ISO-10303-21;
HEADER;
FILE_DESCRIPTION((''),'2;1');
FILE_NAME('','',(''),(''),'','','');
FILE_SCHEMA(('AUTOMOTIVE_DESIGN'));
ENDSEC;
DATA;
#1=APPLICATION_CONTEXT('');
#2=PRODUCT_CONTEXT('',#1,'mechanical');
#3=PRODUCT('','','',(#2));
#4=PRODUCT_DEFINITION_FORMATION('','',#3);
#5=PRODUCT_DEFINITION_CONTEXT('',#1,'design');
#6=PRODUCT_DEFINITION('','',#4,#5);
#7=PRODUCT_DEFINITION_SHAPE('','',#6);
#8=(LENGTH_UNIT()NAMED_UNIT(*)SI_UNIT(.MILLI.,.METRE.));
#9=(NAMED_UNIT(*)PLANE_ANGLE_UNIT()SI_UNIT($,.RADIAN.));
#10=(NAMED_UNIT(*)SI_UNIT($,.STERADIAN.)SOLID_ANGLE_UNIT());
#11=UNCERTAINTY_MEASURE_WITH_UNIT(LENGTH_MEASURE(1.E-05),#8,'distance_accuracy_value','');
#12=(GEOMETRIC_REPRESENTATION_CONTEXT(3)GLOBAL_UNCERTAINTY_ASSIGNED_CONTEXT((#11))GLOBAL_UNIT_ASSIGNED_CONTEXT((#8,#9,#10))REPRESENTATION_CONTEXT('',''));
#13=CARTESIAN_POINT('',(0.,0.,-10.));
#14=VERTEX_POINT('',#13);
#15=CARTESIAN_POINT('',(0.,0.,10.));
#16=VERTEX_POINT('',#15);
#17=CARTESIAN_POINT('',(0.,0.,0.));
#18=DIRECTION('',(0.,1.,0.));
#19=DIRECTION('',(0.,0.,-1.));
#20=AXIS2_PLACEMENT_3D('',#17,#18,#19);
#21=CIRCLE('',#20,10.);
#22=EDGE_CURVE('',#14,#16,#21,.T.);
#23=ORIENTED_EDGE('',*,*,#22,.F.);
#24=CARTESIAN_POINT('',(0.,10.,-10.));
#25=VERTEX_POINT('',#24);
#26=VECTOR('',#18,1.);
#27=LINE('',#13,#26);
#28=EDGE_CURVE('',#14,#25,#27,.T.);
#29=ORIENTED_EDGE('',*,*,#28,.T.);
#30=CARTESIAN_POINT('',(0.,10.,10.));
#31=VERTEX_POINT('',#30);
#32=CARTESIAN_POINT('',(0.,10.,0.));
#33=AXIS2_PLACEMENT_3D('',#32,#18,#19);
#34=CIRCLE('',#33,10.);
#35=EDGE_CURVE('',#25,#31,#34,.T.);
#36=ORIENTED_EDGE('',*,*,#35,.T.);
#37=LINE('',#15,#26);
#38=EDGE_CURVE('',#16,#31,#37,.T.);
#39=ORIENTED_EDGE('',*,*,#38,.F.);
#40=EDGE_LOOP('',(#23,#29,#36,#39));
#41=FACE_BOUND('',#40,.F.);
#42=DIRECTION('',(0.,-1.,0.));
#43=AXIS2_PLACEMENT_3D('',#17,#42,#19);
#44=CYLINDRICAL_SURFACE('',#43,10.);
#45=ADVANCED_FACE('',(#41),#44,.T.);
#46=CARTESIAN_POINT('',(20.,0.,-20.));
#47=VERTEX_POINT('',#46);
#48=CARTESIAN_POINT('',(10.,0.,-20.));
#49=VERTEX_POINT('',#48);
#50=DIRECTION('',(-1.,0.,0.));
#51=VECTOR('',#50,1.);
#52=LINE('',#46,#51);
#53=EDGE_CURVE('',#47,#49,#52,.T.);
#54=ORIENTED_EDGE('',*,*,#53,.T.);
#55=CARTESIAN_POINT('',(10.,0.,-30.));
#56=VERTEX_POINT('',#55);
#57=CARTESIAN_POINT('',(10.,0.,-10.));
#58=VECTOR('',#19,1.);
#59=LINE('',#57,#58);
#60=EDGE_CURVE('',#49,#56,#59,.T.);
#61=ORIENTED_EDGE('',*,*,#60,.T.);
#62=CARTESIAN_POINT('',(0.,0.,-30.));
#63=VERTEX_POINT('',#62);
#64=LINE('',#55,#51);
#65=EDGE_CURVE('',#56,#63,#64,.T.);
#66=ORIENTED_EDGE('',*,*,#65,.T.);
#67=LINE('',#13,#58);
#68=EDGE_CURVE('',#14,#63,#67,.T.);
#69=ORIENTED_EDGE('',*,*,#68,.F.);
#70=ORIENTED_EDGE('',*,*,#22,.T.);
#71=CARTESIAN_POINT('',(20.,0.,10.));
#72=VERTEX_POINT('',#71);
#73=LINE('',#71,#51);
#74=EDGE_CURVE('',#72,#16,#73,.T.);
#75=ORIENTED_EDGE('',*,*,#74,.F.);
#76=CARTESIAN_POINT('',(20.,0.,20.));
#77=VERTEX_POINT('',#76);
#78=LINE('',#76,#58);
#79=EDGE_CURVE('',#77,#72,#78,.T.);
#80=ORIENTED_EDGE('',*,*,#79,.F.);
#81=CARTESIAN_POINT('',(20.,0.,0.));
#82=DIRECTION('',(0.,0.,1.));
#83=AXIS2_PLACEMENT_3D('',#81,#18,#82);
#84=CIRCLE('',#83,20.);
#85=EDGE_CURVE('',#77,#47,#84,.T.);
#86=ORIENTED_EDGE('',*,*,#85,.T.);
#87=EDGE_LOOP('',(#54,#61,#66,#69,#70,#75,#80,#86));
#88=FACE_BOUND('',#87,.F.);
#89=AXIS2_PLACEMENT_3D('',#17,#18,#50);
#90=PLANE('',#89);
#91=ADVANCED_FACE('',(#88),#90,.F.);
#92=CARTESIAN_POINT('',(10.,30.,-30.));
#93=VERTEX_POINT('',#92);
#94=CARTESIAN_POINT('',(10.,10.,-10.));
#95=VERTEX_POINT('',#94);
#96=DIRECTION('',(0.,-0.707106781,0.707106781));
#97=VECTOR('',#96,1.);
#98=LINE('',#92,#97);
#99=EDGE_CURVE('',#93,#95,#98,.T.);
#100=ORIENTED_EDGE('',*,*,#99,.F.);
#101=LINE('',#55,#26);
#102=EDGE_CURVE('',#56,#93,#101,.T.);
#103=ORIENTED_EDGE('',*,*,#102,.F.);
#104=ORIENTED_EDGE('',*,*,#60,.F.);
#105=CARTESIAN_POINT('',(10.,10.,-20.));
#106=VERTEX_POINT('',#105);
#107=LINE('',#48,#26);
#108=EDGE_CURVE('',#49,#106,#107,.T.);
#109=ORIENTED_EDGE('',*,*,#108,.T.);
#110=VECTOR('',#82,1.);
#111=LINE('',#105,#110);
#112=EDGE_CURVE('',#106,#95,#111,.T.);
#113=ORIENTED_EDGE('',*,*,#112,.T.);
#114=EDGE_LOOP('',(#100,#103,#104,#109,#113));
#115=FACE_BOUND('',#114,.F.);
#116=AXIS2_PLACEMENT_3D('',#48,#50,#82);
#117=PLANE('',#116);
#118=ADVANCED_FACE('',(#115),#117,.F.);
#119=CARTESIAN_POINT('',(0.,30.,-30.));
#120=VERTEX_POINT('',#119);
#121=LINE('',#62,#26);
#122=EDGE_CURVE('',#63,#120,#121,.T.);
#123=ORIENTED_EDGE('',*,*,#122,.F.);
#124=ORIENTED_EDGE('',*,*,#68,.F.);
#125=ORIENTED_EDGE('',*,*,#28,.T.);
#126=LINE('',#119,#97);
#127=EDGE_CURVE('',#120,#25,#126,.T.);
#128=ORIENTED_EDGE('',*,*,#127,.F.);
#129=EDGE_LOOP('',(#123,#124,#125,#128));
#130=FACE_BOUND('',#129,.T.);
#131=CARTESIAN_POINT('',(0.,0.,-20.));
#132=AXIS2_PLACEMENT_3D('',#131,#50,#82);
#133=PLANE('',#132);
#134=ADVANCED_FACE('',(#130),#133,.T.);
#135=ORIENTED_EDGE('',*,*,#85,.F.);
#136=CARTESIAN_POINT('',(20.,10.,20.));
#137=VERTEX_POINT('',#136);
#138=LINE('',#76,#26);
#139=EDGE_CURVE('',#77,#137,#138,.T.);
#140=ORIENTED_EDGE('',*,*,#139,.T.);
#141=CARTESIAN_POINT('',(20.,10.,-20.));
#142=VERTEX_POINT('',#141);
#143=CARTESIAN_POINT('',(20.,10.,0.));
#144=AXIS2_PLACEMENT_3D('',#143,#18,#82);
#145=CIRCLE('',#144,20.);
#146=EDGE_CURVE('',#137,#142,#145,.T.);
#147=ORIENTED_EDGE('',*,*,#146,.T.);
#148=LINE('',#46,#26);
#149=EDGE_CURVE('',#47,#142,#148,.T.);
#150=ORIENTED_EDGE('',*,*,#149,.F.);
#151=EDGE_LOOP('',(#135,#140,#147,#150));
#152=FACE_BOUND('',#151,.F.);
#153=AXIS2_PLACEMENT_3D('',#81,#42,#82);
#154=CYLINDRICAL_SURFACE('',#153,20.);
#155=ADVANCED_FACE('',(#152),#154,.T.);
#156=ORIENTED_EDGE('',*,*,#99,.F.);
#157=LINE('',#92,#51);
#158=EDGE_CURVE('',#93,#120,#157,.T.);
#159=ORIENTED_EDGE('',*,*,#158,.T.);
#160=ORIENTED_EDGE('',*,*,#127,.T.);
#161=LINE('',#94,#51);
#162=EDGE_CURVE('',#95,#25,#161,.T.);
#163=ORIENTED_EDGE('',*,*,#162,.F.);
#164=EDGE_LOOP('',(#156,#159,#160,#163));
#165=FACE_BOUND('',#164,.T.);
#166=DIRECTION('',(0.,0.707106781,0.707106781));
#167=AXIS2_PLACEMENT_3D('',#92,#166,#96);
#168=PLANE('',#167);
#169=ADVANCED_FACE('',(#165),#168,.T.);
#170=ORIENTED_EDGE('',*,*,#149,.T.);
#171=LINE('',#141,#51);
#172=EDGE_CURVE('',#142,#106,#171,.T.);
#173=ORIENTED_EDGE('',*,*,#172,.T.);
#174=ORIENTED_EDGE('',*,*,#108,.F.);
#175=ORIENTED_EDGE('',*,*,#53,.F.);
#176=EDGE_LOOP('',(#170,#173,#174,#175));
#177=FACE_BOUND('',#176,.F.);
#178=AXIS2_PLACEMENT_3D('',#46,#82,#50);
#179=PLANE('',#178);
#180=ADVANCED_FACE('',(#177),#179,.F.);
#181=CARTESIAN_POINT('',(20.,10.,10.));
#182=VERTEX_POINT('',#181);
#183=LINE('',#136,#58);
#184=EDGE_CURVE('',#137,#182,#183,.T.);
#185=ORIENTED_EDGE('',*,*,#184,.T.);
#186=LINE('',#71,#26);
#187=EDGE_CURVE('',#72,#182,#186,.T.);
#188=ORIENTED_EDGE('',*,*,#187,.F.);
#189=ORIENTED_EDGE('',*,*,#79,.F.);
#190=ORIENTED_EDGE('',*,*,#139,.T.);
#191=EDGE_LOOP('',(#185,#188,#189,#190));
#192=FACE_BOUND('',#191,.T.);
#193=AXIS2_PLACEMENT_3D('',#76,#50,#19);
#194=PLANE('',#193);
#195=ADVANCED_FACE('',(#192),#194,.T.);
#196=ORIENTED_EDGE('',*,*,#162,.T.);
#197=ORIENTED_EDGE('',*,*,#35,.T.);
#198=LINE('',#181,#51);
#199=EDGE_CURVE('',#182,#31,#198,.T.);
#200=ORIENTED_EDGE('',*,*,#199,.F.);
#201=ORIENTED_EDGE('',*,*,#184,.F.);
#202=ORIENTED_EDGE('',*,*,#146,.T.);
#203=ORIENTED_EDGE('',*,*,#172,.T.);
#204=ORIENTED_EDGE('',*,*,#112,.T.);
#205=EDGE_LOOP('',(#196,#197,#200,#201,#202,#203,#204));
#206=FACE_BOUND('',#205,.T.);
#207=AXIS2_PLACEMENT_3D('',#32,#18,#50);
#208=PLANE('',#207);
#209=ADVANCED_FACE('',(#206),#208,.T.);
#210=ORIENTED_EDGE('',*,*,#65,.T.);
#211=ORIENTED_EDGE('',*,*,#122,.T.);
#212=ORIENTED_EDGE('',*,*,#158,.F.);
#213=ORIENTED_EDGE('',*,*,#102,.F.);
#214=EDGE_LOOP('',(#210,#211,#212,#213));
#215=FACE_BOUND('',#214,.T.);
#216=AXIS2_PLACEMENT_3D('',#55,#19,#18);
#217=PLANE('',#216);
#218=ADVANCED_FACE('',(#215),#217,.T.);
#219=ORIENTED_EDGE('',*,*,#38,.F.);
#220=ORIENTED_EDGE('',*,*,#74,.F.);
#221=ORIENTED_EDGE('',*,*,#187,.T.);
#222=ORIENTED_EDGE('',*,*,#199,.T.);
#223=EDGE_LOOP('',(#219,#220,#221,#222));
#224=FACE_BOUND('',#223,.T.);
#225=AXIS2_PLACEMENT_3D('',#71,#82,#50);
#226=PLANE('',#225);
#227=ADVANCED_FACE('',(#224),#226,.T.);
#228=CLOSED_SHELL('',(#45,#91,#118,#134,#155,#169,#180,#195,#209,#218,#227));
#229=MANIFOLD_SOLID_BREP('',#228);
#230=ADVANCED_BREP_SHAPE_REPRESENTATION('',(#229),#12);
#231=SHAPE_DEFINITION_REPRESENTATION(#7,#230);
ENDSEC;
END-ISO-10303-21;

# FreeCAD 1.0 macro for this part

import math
import FreeCAD as App
import Part
import Sketcher

V = App.Vector
Q = App.Units.Quantity


def add_polygon(sketch, points):
    """Adds a closed chain of lines whose ends are joined by coincident constraints."""
    first, n = sketch.GeometryCount, len(points)
    for a, b in zip(points, points[1:] + points[:1]):
        sketch.addGeometry(Part.LineSegment(App.Vector(*a, 0), App.Vector(*b, 0)), False)
    for i in range(n):
        sketch.addConstraint(Sketcher.Constraint("Coincident", first + i, 2, first + (i + 1) % n, 1))

doc = App.newDocument("Part")
body = doc.addObject("PartDesign::Body", "Body")

# Sketch on XZ plane
sketch1 = body.newObject("Sketcher::SketchObject", "Sketch")
sketch1.AttachmentSupport = (doc.getObject("XZ_Plane"), [""])
sketch1.MapMode = "FlatFace"
sketch1.addGeometry([
    Part.LineSegment(V(10, -10, 0), V(0, -10, 0)),  # 0
    Part.ArcOfCircle(Part.Circle(V(0, 0, 0), V(0, 0, 1), 10), math.radians(90), math.radians(270)),  # 1
    Part.LineSegment(V(0, 10, 0), V(20, 10, 0)),  # 2
    Part.LineSegment(V(20, 10, 0), V(20, 20, 0)),  # 3
    Part.ArcOfCircle(Part.Circle(V(20, 0, 0), V(0, 0, 1), 20), math.radians(-90), math.radians(90)),  # 4
    Part.LineSegment(V(20, -20, 0), V(10, -20, 0)),  # 5
    Part.LineSegment(V(10, -20, 0), V(10, -10, 0)),  # 6
], False)
sketch1.addConstraint([
    Sketcher.Constraint("Tangent", 0, 2, 1, 2),
    Sketcher.Constraint("Tangent", 1, 1, 2, 1),
    Sketcher.Constraint("Coincident", 2, 2, 3, 1),
    Sketcher.Constraint("Coincident", 3, 2, 4, 2),
    Sketcher.Constraint("Tangent", 4, 1, 5, 1),
    Sketcher.Constraint("Coincident", 5, 2, 6, 1),
    Sketcher.Constraint("Coincident", 6, 2, 0, 1),
    Sketcher.Constraint("Horizontal", 0),
    Sketcher.Constraint("Horizontal", 2),
    Sketcher.Constraint("Vertical", 3),
    Sketcher.Constraint("Horizontal", 5),
    Sketcher.Constraint("Vertical", 6),
    Sketcher.Constraint("Coincident", 1, 3, -1, 1),
    Sketcher.Constraint("Symmetric", 3, 2, 4, 1, -1),
    Sketcher.Constraint("Equal", 0, 5),
    Sketcher.Constraint("Equal", 5, 3),
    Sketcher.Constraint("Radius", 1, Q("10 mm")),
    Sketcher.Constraint("Radius", 4, Q("20 mm")),
])
pad1 = body.newObject("PartDesign::Pad", "Pad")
pad1.Profile = sketch1
pad1.Length = 10
pad1.Reversed = True

# Sketch on YZ plane
sketch2 = body.newObject("Sketcher::SketchObject", "Sketch001")
sketch2.AttachmentSupport = (doc.getObject("YZ_Plane"), [""])
sketch2.MapMode = "FlatFace"
sketch2.AttachmentOffset = App.Placement(V(0, 0, 10), App.Rotation())
add_polygon(sketch2, [(0, -30), (0, -10), (10, -10), (30, -30)])  # lines 0-3
sketch2.addConstraint([
    Sketcher.Constraint("Vertical", 0),
    Sketcher.Constraint("Horizontal", 1),
    Sketcher.Constraint("Horizontal", 3),
    Sketcher.Constraint("PointOnObject", 0, 2, -2),
    Sketcher.Constraint("DistanceX", 3, 2, 3, 1, Q("30 mm")),
    Sketcher.Constraint("DistanceY", 0, 1, 0, 2, Q("20 mm")),
    Sketcher.Constraint("DistanceY", 2, 2, -1, 1, Q("30 mm")),
    Sketcher.Constraint("DistanceX", 1, 2, 2, 2, Q("20 mm")),
])
pad2 = body.newObject("PartDesign::Pad", "Pad001")
pad2.Profile = sketch2
pad2.Length = 10
pad2.Reversed = True

doc.recompute()
